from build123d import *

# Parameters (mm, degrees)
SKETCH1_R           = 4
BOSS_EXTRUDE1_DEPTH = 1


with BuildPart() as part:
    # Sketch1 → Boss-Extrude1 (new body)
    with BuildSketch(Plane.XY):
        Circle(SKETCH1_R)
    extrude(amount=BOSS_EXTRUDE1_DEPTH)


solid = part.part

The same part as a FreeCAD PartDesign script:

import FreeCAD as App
import Part
import Sketcher

V = App.Vector
Q = App.Units.Quantity

doc = App.newDocument("Part")
params = doc.addObject("Spreadsheet::Sheet", "Params")
for row, (alias, value) in enumerate([
    ("sketch1_diameter", "8 mm"),
    ("pad1_length", "1 mm"),
], start=1):
    params.set(f"A{row}", alias)
    params.set(f"B{row}", "=" + value)
    params.setAlias(f"B{row}", alias)

body = doc.addObject("PartDesign::Body", "Body")

sketch1 = body.newObject("Sketcher::SketchObject", "Sketch")
sketch1.AttachmentSupport = (doc.getObject("XY_Plane"), [""])
sketch1.MapMode = "FlatFace"
sketch1.addGeometry(Part.Circle(V(0, 0, 0), V(0, 0, 1), 4), False)
sketch1.addConstraint([
    Sketcher.Constraint("Coincident", 0, 3, -1, 1),
    Sketcher.Constraint("Diameter", 0, Q("8 mm")),
])
sketch1.setExpression("Constraints[1]", "Params.sketch1_diameter")
pad1 = body.newObject("PartDesign::Pad", "Pad")
pad1.Profile = sketch1
pad1.setExpression("Length", "Params.pad1_length")

doc.recompute()
